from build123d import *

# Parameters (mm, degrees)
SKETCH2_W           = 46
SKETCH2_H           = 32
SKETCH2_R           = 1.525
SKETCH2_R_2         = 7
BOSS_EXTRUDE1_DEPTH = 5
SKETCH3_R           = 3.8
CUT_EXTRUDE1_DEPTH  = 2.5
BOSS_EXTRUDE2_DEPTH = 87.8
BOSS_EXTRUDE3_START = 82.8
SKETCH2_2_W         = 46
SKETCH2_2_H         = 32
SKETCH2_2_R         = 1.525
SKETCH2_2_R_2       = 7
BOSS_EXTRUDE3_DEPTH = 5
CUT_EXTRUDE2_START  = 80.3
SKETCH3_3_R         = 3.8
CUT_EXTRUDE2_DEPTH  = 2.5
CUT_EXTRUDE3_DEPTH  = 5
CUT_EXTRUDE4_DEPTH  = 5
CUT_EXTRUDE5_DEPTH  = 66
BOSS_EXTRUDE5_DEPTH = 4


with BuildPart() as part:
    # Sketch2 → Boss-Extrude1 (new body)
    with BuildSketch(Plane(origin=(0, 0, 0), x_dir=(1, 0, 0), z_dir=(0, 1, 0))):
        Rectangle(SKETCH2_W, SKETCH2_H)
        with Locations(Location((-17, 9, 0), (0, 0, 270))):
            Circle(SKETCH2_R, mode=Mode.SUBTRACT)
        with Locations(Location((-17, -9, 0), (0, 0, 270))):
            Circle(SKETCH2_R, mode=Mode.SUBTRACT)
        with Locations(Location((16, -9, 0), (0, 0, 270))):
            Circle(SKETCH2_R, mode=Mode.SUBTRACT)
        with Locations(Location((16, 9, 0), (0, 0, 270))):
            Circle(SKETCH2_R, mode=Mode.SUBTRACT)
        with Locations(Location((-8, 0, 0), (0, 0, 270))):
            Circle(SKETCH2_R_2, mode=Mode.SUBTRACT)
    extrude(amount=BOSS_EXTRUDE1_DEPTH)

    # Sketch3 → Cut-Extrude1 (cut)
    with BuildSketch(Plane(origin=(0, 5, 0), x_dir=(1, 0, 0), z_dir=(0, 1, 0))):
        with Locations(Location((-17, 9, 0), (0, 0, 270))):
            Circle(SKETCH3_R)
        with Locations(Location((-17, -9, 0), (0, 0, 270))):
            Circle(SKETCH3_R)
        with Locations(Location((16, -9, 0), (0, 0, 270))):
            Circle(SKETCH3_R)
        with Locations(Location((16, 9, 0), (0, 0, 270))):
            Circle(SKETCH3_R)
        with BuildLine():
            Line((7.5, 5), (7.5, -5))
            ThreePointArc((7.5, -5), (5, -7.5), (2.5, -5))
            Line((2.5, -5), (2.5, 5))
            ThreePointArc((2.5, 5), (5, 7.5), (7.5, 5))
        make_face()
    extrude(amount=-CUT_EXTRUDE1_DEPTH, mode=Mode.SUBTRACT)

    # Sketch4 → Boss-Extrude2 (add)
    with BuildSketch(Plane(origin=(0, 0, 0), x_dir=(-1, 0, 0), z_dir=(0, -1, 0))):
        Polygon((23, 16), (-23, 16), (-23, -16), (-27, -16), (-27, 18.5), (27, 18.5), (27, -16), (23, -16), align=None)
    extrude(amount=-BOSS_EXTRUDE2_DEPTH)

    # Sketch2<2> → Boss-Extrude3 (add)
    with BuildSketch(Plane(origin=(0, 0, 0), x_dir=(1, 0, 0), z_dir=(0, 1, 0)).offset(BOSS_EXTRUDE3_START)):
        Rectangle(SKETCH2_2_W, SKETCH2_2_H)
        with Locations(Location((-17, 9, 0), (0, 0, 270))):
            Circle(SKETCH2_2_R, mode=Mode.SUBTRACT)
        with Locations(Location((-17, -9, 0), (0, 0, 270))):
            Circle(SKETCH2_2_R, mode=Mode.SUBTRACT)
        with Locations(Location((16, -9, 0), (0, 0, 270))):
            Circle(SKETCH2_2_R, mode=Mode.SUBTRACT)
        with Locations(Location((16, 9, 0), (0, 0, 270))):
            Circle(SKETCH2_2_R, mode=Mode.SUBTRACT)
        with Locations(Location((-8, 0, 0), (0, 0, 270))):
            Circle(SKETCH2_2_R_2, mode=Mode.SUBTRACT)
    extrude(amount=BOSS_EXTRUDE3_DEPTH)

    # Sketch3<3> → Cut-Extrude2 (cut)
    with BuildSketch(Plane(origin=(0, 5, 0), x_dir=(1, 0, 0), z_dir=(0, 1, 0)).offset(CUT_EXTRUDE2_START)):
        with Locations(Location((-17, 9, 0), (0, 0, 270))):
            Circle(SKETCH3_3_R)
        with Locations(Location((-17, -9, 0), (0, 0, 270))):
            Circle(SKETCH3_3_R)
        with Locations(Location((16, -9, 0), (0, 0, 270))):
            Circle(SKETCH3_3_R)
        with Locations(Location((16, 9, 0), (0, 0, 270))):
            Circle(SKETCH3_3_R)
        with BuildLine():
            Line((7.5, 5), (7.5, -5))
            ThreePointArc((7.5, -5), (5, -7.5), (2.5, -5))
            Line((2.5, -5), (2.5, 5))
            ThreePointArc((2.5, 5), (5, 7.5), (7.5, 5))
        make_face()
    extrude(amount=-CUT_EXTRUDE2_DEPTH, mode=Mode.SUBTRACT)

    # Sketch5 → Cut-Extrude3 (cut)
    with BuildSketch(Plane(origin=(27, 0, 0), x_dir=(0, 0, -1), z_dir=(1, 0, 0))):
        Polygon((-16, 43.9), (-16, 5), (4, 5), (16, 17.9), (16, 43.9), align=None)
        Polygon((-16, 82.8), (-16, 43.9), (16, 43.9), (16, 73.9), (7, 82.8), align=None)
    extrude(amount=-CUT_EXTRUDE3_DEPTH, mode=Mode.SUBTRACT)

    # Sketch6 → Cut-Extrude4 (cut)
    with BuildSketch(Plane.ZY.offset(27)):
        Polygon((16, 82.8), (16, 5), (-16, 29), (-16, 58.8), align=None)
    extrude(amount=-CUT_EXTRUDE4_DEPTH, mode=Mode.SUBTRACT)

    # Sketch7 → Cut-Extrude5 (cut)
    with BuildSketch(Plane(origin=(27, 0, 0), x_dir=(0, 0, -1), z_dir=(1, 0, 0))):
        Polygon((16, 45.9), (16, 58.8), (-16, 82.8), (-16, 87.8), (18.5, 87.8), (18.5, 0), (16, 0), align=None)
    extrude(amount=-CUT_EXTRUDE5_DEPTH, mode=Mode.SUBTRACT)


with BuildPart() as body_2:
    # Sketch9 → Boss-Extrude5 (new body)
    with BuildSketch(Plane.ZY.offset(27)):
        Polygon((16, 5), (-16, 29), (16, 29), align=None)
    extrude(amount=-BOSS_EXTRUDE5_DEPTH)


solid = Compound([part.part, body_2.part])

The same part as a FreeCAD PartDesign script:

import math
import FreeCAD as App
import Part
import Sketcher

doc = App.newDocument("Part")
body = doc.addObject("PartDesign::Body", "Body")

# Sketch on XZ plane
sketch1 = doc.addObject("Sketcher::SketchObject", "Sketch")
body.addObject(sketch1)
sketch1.AttachmentSupport = (doc.XZ_Plane, [""])
sketch1.MapMode = "FlatFace"
sketch1.addGeometry([
    Part.LineSegment(App.Vector(-23, -16, 0), App.Vector(-23, 16, 0)),  # 0
    Part.LineSegment(App.Vector(-23, 16, 0), App.Vector(23, 16, 0)),  # 1
    Part.LineSegment(App.Vector(23, 16, 0), App.Vector(23, -16, 0)),  # 2
    Part.LineSegment(App.Vector(23, -16, 0), App.Vector(-23, -16, 0)),  # 3
    Part.Circle(App.Vector(-17, 9, 0), App.Vector(0, 0, 1), 1.5),  # 4
    Part.Circle(App.Vector(16, 9, 0), App.Vector(0, 0, 1), 1.5),  # 5
    Part.Circle(App.Vector(-8, 0, 0), App.Vector(0, 0, 1), 7),  # 6
    Part.Circle(App.Vector(-17, -9, 0), App.Vector(0, 0, 1), 1.5),  # 7
    Part.Circle(App.Vector(16, -9, 0), App.Vector(0, 0, 1), 1.5),  # 8
], False)
sketch1.addConstraint([
    Sketcher.Constraint("Coincident", 0, 2, 1, 1),
    Sketcher.Constraint("Coincident", 1, 2, 2, 1),
    Sketcher.Constraint("Coincident", 2, 2, 3, 1),
    Sketcher.Constraint("Coincident", 3, 2, 0, 1),
    Sketcher.Constraint("Vertical", 0),
    Sketcher.Constraint("Horizontal", 1),
    Sketcher.Constraint("Vertical", 2),
    Sketcher.Constraint("Horizontal", 3),
    Sketcher.Constraint("Equal", 4, 5),
    Sketcher.Constraint("Equal", 5, 7),
    Sketcher.Constraint("Equal", 7, 8),
    Sketcher.Constraint("Symmetric", 0, 2, 2, 2, -1, 1),
    Sketcher.Constraint("Symmetric", 4, 3, 7, 3, -1),
    Sketcher.Constraint("Symmetric", 5, 3, 8, 3, -1),
    Sketcher.Constraint("PointOnObject", 6, 3, -1),
    Sketcher.Constraint("Horizontal", 4, 3, 5, 3),
    Sketcher.Constraint("Diameter", 6, 14.0),
    Sketcher.Constraint("Diameter", 4, 3.05),
    Sketcher.Constraint("DistanceX", 1, 1, 1, 2, 46.0),
    Sketcher.Constraint("DistanceY", 0, 1, 0, 2, 32.0),
    Sketcher.Constraint("DistanceX", 4, 3, -1, 1, 17.0),
    Sketcher.Constraint("DistanceY", -1, 1, 4, 3, 9.0),
    Sketcher.Constraint("DistanceX", -1, 1, 5, 3, 16.0),
    Sketcher.Constraint("DistanceX", 6, 3, -1, 1, 8.0),
])
pad1 = doc.addObject("PartDesign::Pad", "Pad")
body.addObject(pad1)
pad1.Profile = sketch1
pad1.Length = 5
pad1.Reversed = True

# Sketch on XZ plane
sketch2 = doc.addObject("Sketcher::SketchObject", "Sketch001")
body.addObject(sketch2)
sketch2.AttachmentSupport = (doc.XZ_Plane, [""])
sketch2.MapMode = "FlatFace"
sketch2.AttachmentOffset = App.Placement(App.Vector(0, 0, -5), App.Rotation())
sketch2.addGeometry([
    Part.Circle(App.Vector(-17, -9, 0), App.Vector(0, 0, 1), 3.8),  # 0
    Part.Circle(App.Vector(-17, 9, 0), App.Vector(0, 0, 1), 3.8),  # 1
    Part.Circle(App.Vector(16, 9, 0), App.Vector(0, 0, 1), 3.8),  # 2
    Part.Circle(App.Vector(16, -9, 0), App.Vector(0, 0, 1), 3.8),  # 3
    Part.LineSegment(App.Vector(7.5, 5, 0), App.Vector(7.5, -5, 0)),  # 4
    Part.ArcOfCircle(Part.Circle(App.Vector(5, -5, 0), App.Vector(0, 0, 1), 2.5), math.radians(180), math.radians(360)),  # 5
    Part.LineSegment(App.Vector(2.5, -5, 0), App.Vector(2.5, 5, 0)),  # 6
    Part.ArcOfCircle(Part.Circle(App.Vector(5, 5, 0), App.Vector(0, 0, 1), 2.5), math.radians(0), math.radians(180)),  # 7
], False)
sketch2.addConstraint([
    Sketcher.Constraint("Tangent", 4, 2, 5, 2),
    Sketcher.Constraint("Tangent", 5, 1, 6, 1),
    Sketcher.Constraint("Tangent", 6, 2, 7, 2),
    Sketcher.Constraint("Tangent", 7, 1, 4, 1),
    Sketcher.Constraint("Vertical", 4),
    Sketcher.Constraint("Vertical", 6),
    Sketcher.Constraint("Equal", 0, 1),
    Sketcher.Constraint("Equal", 1, 2),
    Sketcher.Constraint("Equal", 2, 3),
    Sketcher.Constraint("Symmetric", 0, 3, 1, 3, -1),
    Sketcher.Constraint("Symmetric", 2, 3, 3, 3, -1),
    Sketcher.Constraint("Horizontal", 1, 3, 2, 3),
    Sketcher.Constraint("Diameter", 0, 7.6),
    Sketcher.Constraint("Radius", 5, 2.5),
    Sketcher.Constraint("DistanceY", 4, 2, 4, 1, 10.0),
    Sketcher.Constraint("DistanceX", 0, 3, -1, 1, 17.0),
    Sketcher.Constraint("DistanceY", 0, 3, -1, 1, 9.0),
    Sketcher.Constraint("DistanceX", -1, 1, 2, 3, 16.0),
    Sketcher.Constraint("DistanceX", -1, 1, 5, 3, 5.0),
    Sketcher.Constraint("DistanceY", 5, 3, -1, 1, 5.0),
])
pocket1 = doc.addObject("PartDesign::Pocket", "Pocket")
body.addObject(pocket1)
pocket1.Profile = sketch2
pocket1.Length = 2.5
pocket1.Reversed = True

# Sketch on XZ plane
sketch3 = doc.addObject("Sketcher::SketchObject", "Sketch002")
body.addObject(sketch3)
sketch3.AttachmentSupport = (doc.XZ_Plane, [""])
sketch3.MapMode = "FlatFace"
sketch3.addGeometry([
    Part.LineSegment(App.Vector(23, -16, 0), App.Vector(-23, -16, 0)),  # 0
    Part.LineSegment(App.Vector(-23, -16, 0), App.Vector(-23, 16, 0)),  # 1
    Part.LineSegment(App.Vector(-23, 16, 0), App.Vector(-27, 16, 0)),  # 2
    Part.LineSegment(App.Vector(-27, 16, 0), App.Vector(-27, -18.5, 0)),  # 3
    Part.LineSegment(App.Vector(-27, -18.5, 0), App.Vector(27, -18.5, 0)),  # 4
    Part.LineSegment(App.Vector(27, -18.5, 0), App.Vector(27, 16, 0)),  # 5
    Part.LineSegment(App.Vector(27, 16, 0), App.Vector(23, 16, 0)),  # 6
    Part.LineSegment(App.Vector(23, 16, 0), App.Vector(23, -16, 0)),  # 7
], False)
sketch3.addConstraint([
    Sketcher.Constraint("Coincident", 0, 2, 1, 1),
    Sketcher.Constraint("Coincident", 1, 2, 2, 1),
    Sketcher.Constraint("Coincident", 2, 2, 3, 1),
    Sketcher.Constraint("Coincident", 3, 2, 4, 1),
    Sketcher.Constraint("Coincident", 4, 2, 5, 1),
    Sketcher.Constraint("Coincident", 5, 2, 6, 1),
    Sketcher.Constraint("Coincident", 6, 2, 7, 1),
    Sketcher.Constraint("Coincident", 7, 2, 0, 1),
    Sketcher.Constraint("Horizontal", 0),
    Sketcher.Constraint("Vertical", 1),
    Sketcher.Constraint("Horizontal", 2),
    Sketcher.Constraint("Vertical", 3),
    Sketcher.Constraint("Horizontal", 4),
    Sketcher.Constraint("Vertical", 5),
    Sketcher.Constraint("Horizontal", 6),
    Sketcher.Constraint("Vertical", 7),
    Sketcher.Constraint("Symmetric", 0, 2, 6, 2, -1, 1),
    Sketcher.Constraint("Symmetric", 2, 2, 5, 2, -2),
    Sketcher.Constraint("DistanceX", 0, 2, 0, 1, 46.0),
    Sketcher.Constraint("DistanceX", 2, 2, 2, 1, 4.0),
    Sketcher.Constraint("DistanceY", 1, 1, 1, 2, 32.0),
    Sketcher.Constraint("DistanceY", 3, 2, 3, 1, 34.5),
])
pad2 = doc.addObject("PartDesign::Pad", "Pad001")
body.addObject(pad2)
pad2.Profile = sketch3
pad2.Length = 87.8
pad2.Reversed = True

# Sketch on XZ plane
sketch4 = doc.addObject("Sketcher::SketchObject", "Sketch003")
body.addObject(sketch4)
sketch4.AttachmentSupport = (doc.XZ_Plane, [""])
sketch4.MapMode = "FlatFace"
sketch4.AttachmentOffset = App.Placement(App.Vector(0, 0, -82.8), App.Rotation())
sketch4.addGeometry([
    Part.LineSegment(App.Vector(-23, -16, 0), App.Vector(-23, 16, 0)),  # 0
    Part.LineSegment(App.Vector(-23, 16, 0), App.Vector(23, 16, 0)),  # 1
    Part.LineSegment(App.Vector(23, 16, 0), App.Vector(23, -16, 0)),  # 2
    Part.LineSegment(App.Vector(23, -16, 0), App.Vector(-23, -16, 0)),  # 3
    Part.Circle(App.Vector(-17, 9, 0), App.Vector(0, 0, 1), 1.5),  # 4
    Part.Circle(App.Vector(16, 9, 0), App.Vector(0, 0, 1), 1.5),  # 5
    Part.Circle(App.Vector(-8, 0, 0), App.Vector(0, 0, 1), 7),  # 6
    Part.Circle(App.Vector(-17, -9, 0), App.Vector(0, 0, 1), 1.5),  # 7
    Part.Circle(App.Vector(16, -9, 0), App.Vector(0, 0, 1), 1.5),  # 8
], False)
sketch4.addConstraint([
    Sketcher.Constraint("Coincident", 0, 2, 1, 1),
    Sketcher.Constraint("Coincident", 1, 2, 2, 1),
    Sketcher.Constraint("Coincident", 2, 2, 3, 1),
    Sketcher.Constraint("Coincident", 3, 2, 0, 1),
    Sketcher.Constraint("Vertical", 0),
    Sketcher.Constraint("Horizontal", 1),
    Sketcher.Constraint("Vertical", 2),
    Sketcher.Constraint("Horizontal", 3),
    Sketcher.Constraint("Equal", 4, 5),
    Sketcher.Constraint("Equal", 5, 7),
    Sketcher.Constraint("Equal", 7, 8),
    Sketcher.Constraint("Symmetric", 0, 2, 2, 2, -1, 1),
    Sketcher.Constraint("Symmetric", 4, 3, 7, 3, -1),
    Sketcher.Constraint("Symmetric", 5, 3, 8, 3, -1),
    Sketcher.Constraint("PointOnObject", 6, 3, -1),
    Sketcher.Constraint("Horizontal", 4, 3, 5, 3),
    Sketcher.Constraint("Diameter", 6, 14.0),
    Sketcher.Constraint("Diameter", 4, 3.05),
    Sketcher.Constraint("DistanceX", 1, 1, 1, 2, 46.0),
    Sketcher.Constraint("DistanceY", 0, 1, 0, 2, 32.0),
    Sketcher.Constraint("DistanceX", 4, 3, -1, 1, 17.0),
    Sketcher.Constraint("DistanceY", -1, 1, 4, 3, 9.0),
    Sketcher.Constraint("DistanceX", -1, 1, 5, 3, 16.0),
    Sketcher.Constraint("DistanceX", 6, 3, -1, 1, 8.0),
])
pad3 = doc.addObject("PartDesign::Pad", "Pad002")
body.addObject(pad3)
pad3.Profile = sketch4
pad3.Length = 5
pad3.Reversed = True

# Sketch on XZ plane
sketch5 = doc.addObject("Sketcher::SketchObject", "Sketch004")
body.addObject(sketch5)
sketch5.AttachmentSupport = (doc.XZ_Plane, [""])
sketch5.MapMode = "FlatFace"
sketch5.AttachmentOffset = App.Placement(App.Vector(0, 0, -85.3), App.Rotation())
sketch5.addGeometry([
    Part.Circle(App.Vector(-17, -9, 0), App.Vector(0, 0, 1), 3.8),  # 0
    Part.Circle(App.Vector(-17, 9, 0), App.Vector(0, 0, 1), 3.8),  # 1
    Part.Circle(App.Vector(16, 9, 0), App.Vector(0, 0, 1), 3.8),  # 2
    Part.Circle(App.Vector(16, -9, 0), App.Vector(0, 0, 1), 3.8),  # 3
    Part.LineSegment(App.Vector(7.5, 5, 0), App.Vector(7.5, -5, 0)),  # 4
    Part.ArcOfCircle(Part.Circle(App.Vector(5, -5, 0), App.Vector(0, 0, 1), 2.5), math.radians(180), math.radians(360)),  # 5
    Part.LineSegment(App.Vector(2.5, -5, 0), App.Vector(2.5, 5, 0)),  # 6
    Part.ArcOfCircle(Part.Circle(App.Vector(5, 5, 0), App.Vector(0, 0, 1), 2.5), math.radians(0), math.radians(180)),  # 7
], False)
sketch5.addConstraint([
    Sketcher.Constraint("Tangent", 4, 2, 5, 2),
    Sketcher.Constraint("Tangent", 5, 1, 6, 1),
    Sketcher.Constraint("Tangent", 6, 2, 7, 2),
    Sketcher.Constraint("Tangent", 7, 1, 4, 1),
    Sketcher.Constraint("Vertical", 4),
    Sketcher.Constraint("Vertical", 6),
    Sketcher.Constraint("Equal", 0, 1),
    Sketcher.Constraint("Equal", 1, 2),
    Sketcher.Constraint("Equal", 2, 3),
    Sketcher.Constraint("Symmetric", 0, 3, 1, 3, -1),
    Sketcher.Constraint("Symmetric", 2, 3, 3, 3, -1),
    Sketcher.Constraint("Horizontal", 1, 3, 2, 3),
    Sketcher.Constraint("Diameter", 0, 7.6),
    Sketcher.Constraint("Radius", 5, 2.5),
    Sketcher.Constraint("DistanceY", 4, 2, 4, 1, 10.0),
    Sketcher.Constraint("DistanceX", 0, 3, -1, 1, 17.0),
    Sketcher.Constraint("DistanceY", 0, 3, -1, 1, 9.0),
    Sketcher.Constraint("DistanceX", -1, 1, 2, 3, 16.0),
    Sketcher.Constraint("DistanceX", -1, 1, 5, 3, 5.0),
    Sketcher.Constraint("DistanceY", 5, 3, -1, 1, 5.0),
])
pocket2 = doc.addObject("PartDesign::Pocket", "Pocket001")
body.addObject(pocket2)
pocket2.Profile = sketch5
pocket2.Length = 2.5
pocket2.Reversed = True

# Sketch on YZ plane
sketch6 = doc.addObject("Sketcher::SketchObject", "Sketch005")
body.addObject(sketch6)
sketch6.AttachmentSupport = (doc.YZ_Plane, [""])
sketch6.MapMode = "FlatFace"
sketch6.AttachmentOffset = App.Placement(App.Vector(0, 0, 27), App.Rotation())
sketch6.addGeometry([
    Part.LineSegment(App.Vector(5, 16, 0), App.Vector(5, -4, 0)),  # 0
    Part.LineSegment(App.Vector(5, -4, 0), App.Vector(18, -16, 0)),  # 1
    Part.LineSegment(App.Vector(18, -16, 0), App.Vector(74, -16, 0)),  # 2
    Part.LineSegment(App.Vector(74, -16, 0), App.Vector(83, -7, 0)),  # 3
    Part.LineSegment(App.Vector(83, -7, 0), App.Vector(83, 16, 0)),  # 4
    Part.LineSegment(App.Vector(83, 16, 0), App.Vector(5, 16, 0)),  # 5
], False)
sketch6.addConstraint([
    Sketcher.Constraint("Coincident", 0, 2, 1, 1),
    Sketcher.Constraint("Coincident", 1, 2, 2, 1),
    Sketcher.Constraint("Coincident", 2, 2, 3, 1),
    Sketcher.Constraint("Coincident", 3, 2, 4, 1),
    Sketcher.Constraint("Coincident", 4, 2, 5, 1),
    Sketcher.Constraint("Coincident", 5, 2, 0, 1),
    Sketcher.Constraint("Vertical", 0),
    Sketcher.Constraint("Horizontal", 2),
    Sketcher.Constraint("Vertical", 4),
    Sketcher.Constraint("Horizontal", 5),
    Sketcher.Constraint("DistanceX", 2, 1, 2, 2, 56.0),
    Sketcher.Constraint("DistanceY", 0, 2, 0, 1, 20.0),
    Sketcher.Constraint("DistanceY", 4, 1, 4, 2, 23.0),
    Sketcher.Constraint("DistanceX", 5, 2, 5, 1, 77.8),
    Sketcher.Constraint("DistanceX", -1, 1, 0, 2, 5.0),
    Sketcher.Constraint("DistanceY", 0, 2, -1, 1, 4.0),
    Sketcher.Constraint("DistanceY", 1, 2, -1, 1, 16.0),
    Sketcher.Constraint("DistanceX", -1, 1, 1, 2, 17.9),
])
pocket3 = doc.addObject("PartDesign::Pocket", "Pocket002")
body.addObject(pocket3)
pocket3.Profile = sketch6
pocket3.Length = 5

# Sketch on YZ plane
sketch7 = doc.addObject("Sketcher::SketchObject", "Sketch006")
body.addObject(sketch7)
sketch7.AttachmentSupport = (doc.YZ_Plane, [""])
sketch7.MapMode = "FlatFace"
sketch7.AttachmentOffset = App.Placement(App.Vector(0, 0, -27), App.Rotation())
sketch7.addGeometry([
    Part.LineSegment(App.Vector(5, 16, 0), App.Vector(83, 16, 0)),
    Part.LineSegment(App.Vector(83, 16, 0), App.Vector(59, -16, 0)),
    Part.LineSegment(App.Vector(59, -16, 0), App.Vector(29, -16, 0)),
    Part.LineSegment(App.Vector(29, -16, 0), App.Vector(5, 16, 0)),
], False)
sketch7.addConstraint([
    Sketcher.Constraint("Coincident", 0, 2, 1, 1),
    Sketcher.Constraint("Coincident", 1, 2, 2, 1),
    Sketcher.Constraint("Coincident", 2, 2, 3, 1),
    Sketcher.Constraint("Coincident", 3, 2, 0, 1),
    Sketcher.Constraint("Horizontal", 0),
    Sketcher.Constraint("Horizontal", 2),
    Sketcher.Constraint("Equal", 1, 3),
    Sketcher.Constraint("Distance", 1, 40.0),
    Sketcher.Constraint("DistanceX", 0, 1, 0, 2, 77.8),
    Sketcher.Constraint("DistanceX", 2, 2, 2, 1, 29.8),
    Sketcher.Constraint("DistanceY", -1, 1, 0, 2, 16.0),
    Sketcher.Constraint("DistanceX", -1, 1, 2, 2, 29.0),
])
pocket4 = doc.addObject("PartDesign::Pocket", "Pocket003")
body.addObject(pocket4)
pocket4.Profile = sketch7
pocket4.Length = 5
pocket4.Reversed = True

# Sketch on YZ plane
sketch8 = doc.addObject("Sketcher::SketchObject", "Sketch007")
body.addObject(sketch8)
sketch8.AttachmentSupport = (doc.YZ_Plane, [""])
sketch8.MapMode = "FlatFace"
sketch8.AttachmentOffset = App.Placement(App.Vector(0, 0, 27), App.Rotation())
sketch8.addGeometry([
    Part.LineSegment(App.Vector(58.8, -16, 0), App.Vector(0, -16, 0)),  # 0
    Part.LineSegment(App.Vector(0, -16, 0), App.Vector(0, -18.5, 0)),  # 1
    Part.LineSegment(App.Vector(0, -18.5, 0), App.Vector(87.8, -18.5, 0)),  # 2
    Part.LineSegment(App.Vector(87.8, -18.5, 0), App.Vector(87.8, 16, 0)),  # 3
    Part.LineSegment(App.Vector(87.8, 16, 0), App.Vector(82.8, 16, 0)),  # 4
    Part.LineSegment(App.Vector(82.8, 16, 0), App.Vector(58.8, -16, 0)),  # 5
], False)
sketch8.addConstraint([
    Sketcher.Constraint("Coincident", 0, 2, 1, 1),
    Sketcher.Constraint("Coincident", 1, 2, 2, 1),
    Sketcher.Constraint("Coincident", 2, 2, 3, 1),
    Sketcher.Constraint("Coincident", 3, 2, 4, 1),
    Sketcher.Constraint("Coincident", 4, 2, 5, 1),
    Sketcher.Constraint("Coincident", 5, 2, 0, 1),
    Sketcher.Constraint("Horizontal", 0),
    Sketcher.Constraint("Vertical", 1),
    Sketcher.Constraint("Horizontal", 2),
    Sketcher.Constraint("Vertical", 3),
    Sketcher.Constraint("Horizontal", 4),
    Sketcher.Constraint("PointOnObject", 0, 2, -2),
    Sketcher.Constraint("DistanceX", 4, 2, 4, 1, 5.0),
    Sketcher.Constraint("Distance", 5, 40.0),
    Sketcher.Constraint("DistanceX", 0, 2, 0, 1, 58.8),
    Sketcher.Constraint("DistanceX", 2, 1, 2, 2, 87.8),
    Sketcher.Constraint("DistanceY", 1, 2, 1, 1, 2.5),
    Sketcher.Constraint("DistanceY", 0, 2, -1, 1, 16.0),
])
pocket5 = doc.addObject("PartDesign::Pocket", "Pocket004")
body.addObject(pocket5)
pocket5.Profile = sketch8
pocket5.Length = 66
body2 = doc.addObject("PartDesign::Body", "Body001")

# Sketch on YZ plane
sketch9 = doc.addObject("Sketcher::SketchObject", "Sketch008")
body2.addObject(sketch9)
sketch9.AttachmentSupport = (doc.getObject("YZ_Plane001"), [""])
sketch9.MapMode = "FlatFace"
sketch9.AttachmentOffset = App.Placement(App.Vector(0, 0, -27), App.Rotation())
sketch9.addGeometry([
    Part.LineSegment(App.Vector(29, -16, 0), App.Vector(5, 16, 0)),
    Part.LineSegment(App.Vector(5, 16, 0), App.Vector(29, 16, 0)),
    Part.LineSegment(App.Vector(29, 16, 0), App.Vector(29, -16, 0)),
], False)
sketch9.addConstraint([
    Sketcher.Constraint("Coincident", 0, 2, 1, 1),
    Sketcher.Constraint("Coincident", 1, 2, 2, 1),
    Sketcher.Constraint("Coincident", 2, 2, 0, 1),
    Sketcher.Constraint("Horizontal", 1),
    Sketcher.Constraint("Vertical", 2),
    Sketcher.Constraint("DistanceX", 1, 1, 1, 2, 24.0),
    Sketcher.Constraint("DistanceY", 2, 2, 2, 1, 32.0),
    Sketcher.Constraint("DistanceX", -1, 1, 0, 2, 5.0),
    Sketcher.Constraint("DistanceY", -1, 1, 0, 2, 16.0),
])
pad4 = doc.addObject("PartDesign::Pad", "Pad003")
body2.addObject(pad4)
pad4.Profile = sketch9
pad4.Length = 4

doc.recompute()
